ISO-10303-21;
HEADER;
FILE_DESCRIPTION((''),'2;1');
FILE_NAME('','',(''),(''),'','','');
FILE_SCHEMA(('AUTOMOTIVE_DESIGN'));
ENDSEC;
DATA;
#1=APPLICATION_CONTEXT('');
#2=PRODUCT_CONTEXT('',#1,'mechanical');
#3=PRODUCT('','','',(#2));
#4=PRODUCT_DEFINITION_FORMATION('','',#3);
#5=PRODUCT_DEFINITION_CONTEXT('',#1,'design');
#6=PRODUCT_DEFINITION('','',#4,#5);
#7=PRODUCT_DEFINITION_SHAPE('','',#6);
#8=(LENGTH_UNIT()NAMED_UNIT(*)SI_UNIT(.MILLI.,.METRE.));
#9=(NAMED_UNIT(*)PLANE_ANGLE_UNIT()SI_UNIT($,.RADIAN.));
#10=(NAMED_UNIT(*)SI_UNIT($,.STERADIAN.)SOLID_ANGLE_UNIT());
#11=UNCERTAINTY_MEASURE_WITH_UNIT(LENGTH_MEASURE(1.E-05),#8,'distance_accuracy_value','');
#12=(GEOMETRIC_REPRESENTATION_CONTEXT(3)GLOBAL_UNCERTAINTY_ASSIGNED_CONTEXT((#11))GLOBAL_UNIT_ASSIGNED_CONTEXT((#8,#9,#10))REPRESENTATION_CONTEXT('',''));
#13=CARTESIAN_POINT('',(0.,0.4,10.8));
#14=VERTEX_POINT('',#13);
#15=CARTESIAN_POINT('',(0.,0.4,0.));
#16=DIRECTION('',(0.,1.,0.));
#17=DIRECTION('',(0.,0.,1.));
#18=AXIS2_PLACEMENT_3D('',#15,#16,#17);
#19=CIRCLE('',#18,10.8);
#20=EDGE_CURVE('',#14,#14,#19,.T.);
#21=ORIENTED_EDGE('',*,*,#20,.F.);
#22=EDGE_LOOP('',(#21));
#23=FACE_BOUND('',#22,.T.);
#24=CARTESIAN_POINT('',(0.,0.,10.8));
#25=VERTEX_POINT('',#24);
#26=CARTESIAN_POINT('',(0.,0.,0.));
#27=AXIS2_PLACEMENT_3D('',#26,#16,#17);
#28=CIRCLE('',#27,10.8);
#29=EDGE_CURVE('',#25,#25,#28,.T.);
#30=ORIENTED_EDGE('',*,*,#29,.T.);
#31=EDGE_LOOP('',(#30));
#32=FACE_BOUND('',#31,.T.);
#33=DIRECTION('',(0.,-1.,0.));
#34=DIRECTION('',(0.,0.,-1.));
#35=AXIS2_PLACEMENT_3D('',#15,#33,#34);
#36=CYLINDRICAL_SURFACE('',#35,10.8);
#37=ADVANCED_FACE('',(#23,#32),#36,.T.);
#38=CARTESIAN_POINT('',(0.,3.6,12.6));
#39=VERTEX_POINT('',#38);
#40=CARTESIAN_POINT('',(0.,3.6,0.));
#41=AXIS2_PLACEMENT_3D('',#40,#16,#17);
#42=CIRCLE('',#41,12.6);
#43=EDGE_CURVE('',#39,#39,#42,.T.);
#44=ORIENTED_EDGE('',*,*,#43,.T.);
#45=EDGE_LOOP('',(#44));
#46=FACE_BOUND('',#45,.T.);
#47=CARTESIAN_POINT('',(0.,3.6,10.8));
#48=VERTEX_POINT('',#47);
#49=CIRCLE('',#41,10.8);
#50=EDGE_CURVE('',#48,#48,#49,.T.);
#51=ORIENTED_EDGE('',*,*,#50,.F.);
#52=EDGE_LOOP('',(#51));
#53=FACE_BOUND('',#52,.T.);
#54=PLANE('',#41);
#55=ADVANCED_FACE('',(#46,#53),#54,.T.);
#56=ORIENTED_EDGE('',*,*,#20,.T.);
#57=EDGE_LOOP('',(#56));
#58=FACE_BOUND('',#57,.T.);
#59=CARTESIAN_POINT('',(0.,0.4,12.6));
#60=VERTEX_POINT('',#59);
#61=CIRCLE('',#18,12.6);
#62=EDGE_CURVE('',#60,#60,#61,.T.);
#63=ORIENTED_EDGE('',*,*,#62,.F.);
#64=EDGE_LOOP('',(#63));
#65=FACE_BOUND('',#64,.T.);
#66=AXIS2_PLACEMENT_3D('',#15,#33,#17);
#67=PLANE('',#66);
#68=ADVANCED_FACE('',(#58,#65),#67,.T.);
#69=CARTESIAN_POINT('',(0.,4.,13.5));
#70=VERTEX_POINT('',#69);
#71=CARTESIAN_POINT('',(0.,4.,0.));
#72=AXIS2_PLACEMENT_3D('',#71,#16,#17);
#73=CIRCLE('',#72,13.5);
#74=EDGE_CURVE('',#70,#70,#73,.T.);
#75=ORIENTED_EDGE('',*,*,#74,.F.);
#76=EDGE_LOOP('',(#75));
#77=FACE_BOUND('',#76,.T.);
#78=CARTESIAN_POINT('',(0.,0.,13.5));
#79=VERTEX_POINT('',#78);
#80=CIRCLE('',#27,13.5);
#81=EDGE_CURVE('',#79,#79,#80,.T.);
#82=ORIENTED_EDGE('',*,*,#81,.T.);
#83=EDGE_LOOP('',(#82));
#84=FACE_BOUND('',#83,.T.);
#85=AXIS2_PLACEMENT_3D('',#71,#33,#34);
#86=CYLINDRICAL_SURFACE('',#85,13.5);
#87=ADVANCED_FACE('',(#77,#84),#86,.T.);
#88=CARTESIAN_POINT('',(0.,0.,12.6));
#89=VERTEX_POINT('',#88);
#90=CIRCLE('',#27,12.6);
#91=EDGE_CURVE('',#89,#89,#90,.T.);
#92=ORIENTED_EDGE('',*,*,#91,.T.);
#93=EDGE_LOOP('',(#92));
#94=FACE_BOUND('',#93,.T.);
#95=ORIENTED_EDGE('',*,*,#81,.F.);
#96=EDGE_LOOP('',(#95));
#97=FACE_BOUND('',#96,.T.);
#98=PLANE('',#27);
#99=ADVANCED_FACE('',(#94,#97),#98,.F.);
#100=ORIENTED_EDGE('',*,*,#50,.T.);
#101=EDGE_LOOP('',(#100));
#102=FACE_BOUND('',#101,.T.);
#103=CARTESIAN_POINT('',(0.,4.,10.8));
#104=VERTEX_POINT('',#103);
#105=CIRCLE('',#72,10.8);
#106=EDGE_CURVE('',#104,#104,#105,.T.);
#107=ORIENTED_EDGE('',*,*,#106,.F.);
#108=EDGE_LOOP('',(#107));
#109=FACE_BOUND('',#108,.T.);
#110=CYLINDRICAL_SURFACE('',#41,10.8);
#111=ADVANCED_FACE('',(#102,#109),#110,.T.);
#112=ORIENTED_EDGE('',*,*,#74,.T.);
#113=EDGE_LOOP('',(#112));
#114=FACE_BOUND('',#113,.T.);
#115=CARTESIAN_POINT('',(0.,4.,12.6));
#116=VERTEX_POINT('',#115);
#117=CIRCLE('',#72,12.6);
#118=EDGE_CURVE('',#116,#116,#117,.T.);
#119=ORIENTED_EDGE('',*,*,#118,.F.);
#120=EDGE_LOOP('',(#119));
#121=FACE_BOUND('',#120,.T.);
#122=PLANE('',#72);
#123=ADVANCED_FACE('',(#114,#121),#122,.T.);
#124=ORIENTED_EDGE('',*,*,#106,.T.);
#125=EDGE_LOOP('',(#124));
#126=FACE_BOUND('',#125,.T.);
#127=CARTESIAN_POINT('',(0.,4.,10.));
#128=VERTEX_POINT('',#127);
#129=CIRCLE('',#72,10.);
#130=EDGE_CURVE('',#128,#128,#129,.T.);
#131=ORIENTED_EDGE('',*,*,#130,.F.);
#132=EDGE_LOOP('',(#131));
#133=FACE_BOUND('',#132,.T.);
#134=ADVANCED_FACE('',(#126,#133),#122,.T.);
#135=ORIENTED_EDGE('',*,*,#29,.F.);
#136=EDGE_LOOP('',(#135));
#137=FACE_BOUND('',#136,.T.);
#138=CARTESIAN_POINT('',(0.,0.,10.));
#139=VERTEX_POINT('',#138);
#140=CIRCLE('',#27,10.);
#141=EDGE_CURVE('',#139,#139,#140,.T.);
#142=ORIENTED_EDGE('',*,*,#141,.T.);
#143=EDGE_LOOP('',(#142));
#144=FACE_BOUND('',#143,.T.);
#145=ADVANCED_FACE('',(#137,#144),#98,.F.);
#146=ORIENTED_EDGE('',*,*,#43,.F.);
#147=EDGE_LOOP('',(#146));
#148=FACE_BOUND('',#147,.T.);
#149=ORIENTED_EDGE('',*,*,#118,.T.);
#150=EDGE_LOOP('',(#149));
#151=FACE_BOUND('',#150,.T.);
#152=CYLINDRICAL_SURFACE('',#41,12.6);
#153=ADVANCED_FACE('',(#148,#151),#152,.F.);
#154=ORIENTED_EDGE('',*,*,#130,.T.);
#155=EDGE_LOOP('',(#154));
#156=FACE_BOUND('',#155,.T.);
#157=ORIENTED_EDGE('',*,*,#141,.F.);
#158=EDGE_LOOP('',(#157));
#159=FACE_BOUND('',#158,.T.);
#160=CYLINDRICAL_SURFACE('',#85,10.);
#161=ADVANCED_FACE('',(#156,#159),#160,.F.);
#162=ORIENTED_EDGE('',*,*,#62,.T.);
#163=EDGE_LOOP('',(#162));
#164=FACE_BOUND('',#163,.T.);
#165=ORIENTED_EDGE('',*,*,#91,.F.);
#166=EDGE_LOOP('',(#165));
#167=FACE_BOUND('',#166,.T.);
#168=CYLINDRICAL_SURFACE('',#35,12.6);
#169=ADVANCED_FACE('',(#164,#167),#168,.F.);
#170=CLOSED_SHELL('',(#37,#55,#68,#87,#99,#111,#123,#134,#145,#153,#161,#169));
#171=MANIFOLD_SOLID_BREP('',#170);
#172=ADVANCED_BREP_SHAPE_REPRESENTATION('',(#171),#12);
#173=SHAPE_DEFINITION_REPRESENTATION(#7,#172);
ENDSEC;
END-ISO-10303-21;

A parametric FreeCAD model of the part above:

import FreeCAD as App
import Part
import Sketcher
from FreeCAD import Vector

doc = App.newDocument("Part")
body = doc.addObject("PartDesign::Body", "Body")

sketch1 = body.newObject("Sketcher::SketchObject", "Sketch")
sketch1.AttachmentSupport = (doc.getObject("XZ_Plane"), [""])
sketch1.MapMode = "FlatFace"
sketch1.addGeometry(Part.Circle(Vector(0, 0, 0), Vector(0, 0, 1), 14), False)
sketch1.addGeometry(Part.Circle(Vector(0, 0, 0), Vector(0, 0, 1), 10), False)
sketch1.addConstraint(Sketcher.Constraint("Coincident", 0, 3, -1, 1))
sketch1.addConstraint(Sketcher.Constraint("Coincident", 1, 3, -1, 1))
sketch1.addConstraint(Sketcher.Constraint("Diameter", 0, 27.0))
sketch1.addConstraint(Sketcher.Constraint("Diameter", 1, 20.0))
pad1 = body.newObject("PartDesign::Pad", "Pad")
pad1.Profile = sketch1
pad1.Length = 4
pad1.Reversed = True

sketch2 = body.newObject("Sketcher::SketchObject", "Sketch001")
sketch2.AttachmentSupport = (doc.getObject("XZ_Plane"), [""])
sketch2.MapMode = "FlatFace"
sketch2.AttachmentOffset = App.Placement(Vector(0, 0, -4), App.Rotation())
sketch2.addGeometry(Part.Circle(Vector(0, 0, 0), Vector(0, 0, 1), 13), False)
sketch2.addGeometry(Part.Circle(Vector(0, 0, 0), Vector(0, 0, 1), 11), False)
sketch2.addConstraint(Sketcher.Constraint("Coincident", 0, 3, -1, 1))
sketch2.addConstraint(Sketcher.Constraint("Coincident", 1, 3, -1, 1))
sketch2.addConstraint(Sketcher.Constraint("Diameter", 0, 25.2))
sketch2.addConstraint(Sketcher.Constraint("Diameter", 1, 21.6))
pocket1 = body.newObject("PartDesign::Pocket", "Pocket")
pocket1.Profile = sketch2
pocket1.Length = 0.4
pocket1.Reversed = True
doc.recompute()

datumplane = body.newObject("PartDesign::Plane", "DatumPlane")
datumplane.AttachmentSupport = (doc.getObject("XZ_Plane"), [""])
datumplane.MapMode = "FlatFace"
datumplane.AttachmentOffset = App.Placement(Vector(0, 0, -2), App.Rotation())
mirrored = body.newObject("PartDesign::Mirrored", "Mirrored")
mirrored.Originals = [pocket1]
mirrored.MirrorPlane = (datumplane, [""])
body.Tip = mirrored

doc.recompute()
